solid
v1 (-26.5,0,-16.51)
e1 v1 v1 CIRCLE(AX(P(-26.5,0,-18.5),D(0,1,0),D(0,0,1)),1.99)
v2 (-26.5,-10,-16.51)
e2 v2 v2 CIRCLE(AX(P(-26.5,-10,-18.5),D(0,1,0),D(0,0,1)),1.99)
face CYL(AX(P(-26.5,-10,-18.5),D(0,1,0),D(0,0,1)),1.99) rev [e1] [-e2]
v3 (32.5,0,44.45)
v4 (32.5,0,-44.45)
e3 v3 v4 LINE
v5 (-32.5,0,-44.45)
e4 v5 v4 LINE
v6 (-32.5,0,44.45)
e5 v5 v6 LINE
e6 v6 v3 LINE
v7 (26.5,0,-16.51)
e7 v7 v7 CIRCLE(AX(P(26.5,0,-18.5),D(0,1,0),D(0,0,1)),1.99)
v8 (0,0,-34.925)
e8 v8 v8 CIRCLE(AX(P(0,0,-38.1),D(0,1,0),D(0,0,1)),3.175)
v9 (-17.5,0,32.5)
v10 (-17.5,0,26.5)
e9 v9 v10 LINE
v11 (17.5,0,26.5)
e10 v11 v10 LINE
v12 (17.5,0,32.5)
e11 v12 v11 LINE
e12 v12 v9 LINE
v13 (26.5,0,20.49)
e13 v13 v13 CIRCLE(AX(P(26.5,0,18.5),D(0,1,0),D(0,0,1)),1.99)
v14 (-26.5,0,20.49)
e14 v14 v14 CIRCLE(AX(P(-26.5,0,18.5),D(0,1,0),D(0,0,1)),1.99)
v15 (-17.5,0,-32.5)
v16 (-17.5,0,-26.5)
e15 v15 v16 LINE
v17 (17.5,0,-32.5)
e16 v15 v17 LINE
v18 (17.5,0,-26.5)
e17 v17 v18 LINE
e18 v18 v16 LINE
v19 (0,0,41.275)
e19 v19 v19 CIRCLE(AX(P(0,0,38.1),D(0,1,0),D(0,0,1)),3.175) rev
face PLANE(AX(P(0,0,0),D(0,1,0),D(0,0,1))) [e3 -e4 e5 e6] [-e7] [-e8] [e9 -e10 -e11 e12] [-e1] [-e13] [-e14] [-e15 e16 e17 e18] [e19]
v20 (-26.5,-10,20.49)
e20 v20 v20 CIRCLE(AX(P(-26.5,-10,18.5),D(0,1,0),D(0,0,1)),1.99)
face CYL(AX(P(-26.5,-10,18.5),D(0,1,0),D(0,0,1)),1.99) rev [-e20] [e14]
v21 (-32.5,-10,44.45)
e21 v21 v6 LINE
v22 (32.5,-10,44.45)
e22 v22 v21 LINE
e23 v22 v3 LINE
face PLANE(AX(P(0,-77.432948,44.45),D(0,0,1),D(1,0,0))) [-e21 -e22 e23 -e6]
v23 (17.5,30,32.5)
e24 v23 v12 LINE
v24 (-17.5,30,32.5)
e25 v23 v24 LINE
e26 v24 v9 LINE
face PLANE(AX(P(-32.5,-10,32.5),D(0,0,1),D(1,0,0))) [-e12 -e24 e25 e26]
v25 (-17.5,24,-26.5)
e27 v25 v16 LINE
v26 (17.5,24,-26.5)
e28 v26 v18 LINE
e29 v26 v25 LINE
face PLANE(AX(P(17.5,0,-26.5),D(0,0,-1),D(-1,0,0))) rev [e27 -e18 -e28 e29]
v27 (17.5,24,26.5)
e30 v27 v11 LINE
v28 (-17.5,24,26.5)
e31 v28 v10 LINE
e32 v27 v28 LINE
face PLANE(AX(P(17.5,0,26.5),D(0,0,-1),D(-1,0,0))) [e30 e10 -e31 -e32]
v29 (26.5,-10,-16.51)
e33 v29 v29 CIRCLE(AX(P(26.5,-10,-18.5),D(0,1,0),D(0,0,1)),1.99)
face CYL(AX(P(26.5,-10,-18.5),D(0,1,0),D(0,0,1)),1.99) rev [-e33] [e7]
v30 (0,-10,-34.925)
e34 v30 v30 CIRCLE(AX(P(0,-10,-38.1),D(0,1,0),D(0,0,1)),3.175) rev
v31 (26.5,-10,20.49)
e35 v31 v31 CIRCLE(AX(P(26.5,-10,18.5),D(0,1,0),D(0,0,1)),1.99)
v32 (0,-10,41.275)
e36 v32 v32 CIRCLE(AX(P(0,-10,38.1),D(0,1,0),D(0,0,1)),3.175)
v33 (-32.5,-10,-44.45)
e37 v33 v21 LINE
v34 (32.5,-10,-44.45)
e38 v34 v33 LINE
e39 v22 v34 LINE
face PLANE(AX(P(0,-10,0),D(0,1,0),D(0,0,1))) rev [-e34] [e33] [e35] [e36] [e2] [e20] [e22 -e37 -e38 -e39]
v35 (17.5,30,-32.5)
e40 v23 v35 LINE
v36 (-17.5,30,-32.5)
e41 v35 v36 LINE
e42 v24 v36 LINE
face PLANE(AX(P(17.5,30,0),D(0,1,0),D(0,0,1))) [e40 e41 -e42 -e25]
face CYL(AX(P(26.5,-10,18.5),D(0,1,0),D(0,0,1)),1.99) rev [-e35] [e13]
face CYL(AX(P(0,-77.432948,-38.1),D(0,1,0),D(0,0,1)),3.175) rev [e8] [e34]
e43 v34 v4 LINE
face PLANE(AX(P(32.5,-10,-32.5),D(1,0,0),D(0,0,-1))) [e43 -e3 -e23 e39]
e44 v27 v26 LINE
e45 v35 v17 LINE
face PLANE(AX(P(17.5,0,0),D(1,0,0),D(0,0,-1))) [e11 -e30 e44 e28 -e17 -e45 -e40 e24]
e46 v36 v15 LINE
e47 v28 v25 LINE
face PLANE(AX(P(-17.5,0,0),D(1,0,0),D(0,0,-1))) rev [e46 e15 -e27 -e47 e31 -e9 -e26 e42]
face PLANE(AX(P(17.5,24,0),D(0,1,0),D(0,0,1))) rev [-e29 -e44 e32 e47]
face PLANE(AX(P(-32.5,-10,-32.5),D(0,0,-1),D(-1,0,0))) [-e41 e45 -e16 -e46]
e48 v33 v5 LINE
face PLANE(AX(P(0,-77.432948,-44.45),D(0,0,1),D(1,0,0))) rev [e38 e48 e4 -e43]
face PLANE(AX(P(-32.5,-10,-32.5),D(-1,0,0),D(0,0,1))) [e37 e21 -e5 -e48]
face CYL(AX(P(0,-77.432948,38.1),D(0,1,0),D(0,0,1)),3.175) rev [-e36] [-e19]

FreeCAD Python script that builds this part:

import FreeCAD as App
import Part
import Sketcher
Q = App.Units.Quantity

doc = App.newDocument("Part")
body = doc.addObject("PartDesign::Body", "Body")

sketch1 = doc.addObject("Sketcher::SketchObject", "Sketch")
body.addObject(sketch1)
sketch1.AttachmentSupport = (doc.XZ_Plane, [""])
sketch1.MapMode = "FlatFace"
sketch1.addGeometry([
    Part.LineSegment(App.Vector(-32.5, -32.5, 0), App.Vector(-32.5, 32.5, 0)),
    Part.LineSegment(App.Vector(-32.5, 32.5, 0), App.Vector(32.5, 32.5, 0)),
    Part.LineSegment(App.Vector(32.5, 32.5, 0), App.Vector(32.5, -32.5, 0)),
    Part.LineSegment(App.Vector(32.5, -32.5, 0), App.Vector(-32.5, -32.5, 0)),
], False)
sketch1.addConstraint([
    Sketcher.Constraint("Coincident", 0, 2, 1, 1),
    Sketcher.Constraint("Coincident", 1, 2, 2, 1),
    Sketcher.Constraint("Coincident", 2, 2, 3, 1),
    Sketcher.Constraint("Coincident", 3, 2, 0, 1),
    Sketcher.Constraint("Vertical", 0),
    Sketcher.Constraint("Horizontal", 1),
    Sketcher.Constraint("Vertical", 2),
    Sketcher.Constraint("Horizontal", 3),
    Sketcher.Constraint("Symmetric", 0, 2, 2, 2, -1, 1),
    Sketcher.Constraint("Equal", 3, 0),
    Sketcher.Constraint("DistanceX", 1, 1, 1, 2, Q("65 mm")),
])
pad1 = doc.addObject("PartDesign::Pad", "Pad")
body.addObject(pad1)
pad1.Profile = sketch1
pad1.Length = 10

sketch2 = doc.addObject("Sketcher::SketchObject", "Sketch001")
body.addObject(sketch2)
sketch2.AttachmentSupport = (doc.YZ_Plane, [""])
sketch2.MapMode = "FlatFace"
sketch2.addGeometry([
    Part.LineSegment(App.Vector(30, 32.5, 0), App.Vector(0, 32.5, 0)),
    Part.LineSegment(App.Vector(0, 32.5, 0), App.Vector(0, 26.5, 0)),
    Part.LineSegment(App.Vector(0, 26.5, 0), App.Vector(24, 26.5, 0)),
    Part.LineSegment(App.Vector(24, 26.5, 0), App.Vector(24, -26.5, 0)),
    Part.LineSegment(App.Vector(24, -26.5, 0), App.Vector(0, -26.5, 0)),
    Part.LineSegment(App.Vector(0, -26.5, 0), App.Vector(0, -32.5, 0)),
    Part.LineSegment(App.Vector(0, -32.5, 0), App.Vector(30, -32.5, 0)),
    Part.LineSegment(App.Vector(30, -32.5, 0), App.Vector(30, 32.5, 0)),
], False)
sketch2.addConstraint([
    Sketcher.Constraint("Coincident", 0, 2, 1, 1),
    Sketcher.Constraint("Coincident", 1, 2, 2, 1),
    Sketcher.Constraint("Coincident", 2, 2, 3, 1),
    Sketcher.Constraint("Coincident", 3, 2, 4, 1),
    Sketcher.Constraint("Coincident", 4, 2, 5, 1),
    Sketcher.Constraint("Coincident", 5, 2, 6, 1),
    Sketcher.Constraint("Coincident", 6, 2, 7, 1),
    Sketcher.Constraint("Coincident", 7, 2, 0, 1),
    Sketcher.Constraint("Horizontal", 0),
    Sketcher.Constraint("Vertical", 1),
    Sketcher.Constraint("Horizontal", 2),
    Sketcher.Constraint("Vertical", 3),
    Sketcher.Constraint("Horizontal", 4),
    Sketcher.Constraint("Vertical", 5),
    Sketcher.Constraint("Horizontal", 6),
    Sketcher.Constraint("Vertical", 7),
    Sketcher.Constraint("Symmetric", 1, 2, 4, 2, -1, 1),
    Sketcher.Constraint("Symmetric", 0, 2, 5, 2, -1),
    Sketcher.Constraint("DistanceX", 0, 2, 0, 1, Q("30 mm")),
    Sketcher.Constraint("DistanceX", 2, 1, 2, 2, Q("24 mm")),
    Sketcher.Constraint("DistanceY", 1, 2, 1, 1, Q("6 mm")),
    Sketcher.Constraint("DistanceY", 3, 2, 3, 1, Q("53 mm")),
])
pad2 = doc.addObject("PartDesign::Pad", "Pad001")
body.addObject(pad2)
pad2.Profile = sketch2
pad2.Length = 35
pad2.Midplane = True

sketch3 = doc.addObject("Sketcher::SketchObject", "Sketch002")
body.addObject(sketch3)
sketch3.AttachmentSupport = (doc.XZ_Plane, [""])
sketch3.MapMode = "FlatFace"
sketch3.addGeometry([
    Part.LineSegment(App.Vector(32.5, -44.45, 0), App.Vector(-32.5, -44.45, 0)),
    Part.LineSegment(App.Vector(-32.5, -44.45, 0), App.Vector(-32.5, -32.5, 0)),
    Part.LineSegment(App.Vector(-32.5, -32.5, 0), App.Vector(-17.5, -32.5, 0)),
    Part.LineSegment(App.Vector(-17.5, -32.5, 0), App.Vector(-17.5, -26.5, 0)),
    Part.LineSegment(App.Vector(-17.5, -26.5, 0), App.Vector(17.5, -26.5, 0)),
    Part.LineSegment(App.Vector(17.5, -26.5, 0), App.Vector(17.5, -32.5, 0)),
    Part.LineSegment(App.Vector(17.5, -32.5, 0), App.Vector(32.5, -32.5, 0)),
    Part.LineSegment(App.Vector(32.5, -32.5, 0), App.Vector(32.5, -44.45, 0)),
    Part.Circle(App.Vector(0, -38.1, 0), App.Vector(0, 0, 1), 3.175),
    Part.LineSegment(App.Vector(-17.5, 32.5, 0), App.Vector(-32.5, 32.5, 0)),
    Part.LineSegment(App.Vector(-32.5, 32.5, 0), App.Vector(-32.5, 44.45, 0)),
    Part.LineSegment(App.Vector(-32.5, 44.45, 0), App.Vector(32.5, 44.45, 0)),
    Part.LineSegment(App.Vector(32.5, 44.45, 0), App.Vector(32.5, 32.5, 0)),
    Part.LineSegment(App.Vector(32.5, 32.5, 0), App.Vector(17.5, 32.5, 0)),
    Part.LineSegment(App.Vector(17.5, 32.5, 0), App.Vector(17.5, 26.5, 0)),
    Part.LineSegment(App.Vector(17.5, 26.5, 0), App.Vector(-17.5, 26.5, 0)),
    Part.LineSegment(App.Vector(-17.5, 26.5, 0), App.Vector(-17.5, 32.5, 0)),
    Part.Circle(App.Vector(0, 38.1, 0), App.Vector(0, 0, 1), 3.175),
], False)
sketch3.addConstraint([
    Sketcher.Constraint("Coincident", 0, 2, 1, 1),
    Sketcher.Constraint("Coincident", 1, 2, 2, 1),
    Sketcher.Constraint("Coincident", 2, 2, 3, 1),
    Sketcher.Constraint("Coincident", 3, 2, 4, 1),
    Sketcher.Constraint("Coincident", 4, 2, 5, 1),
    Sketcher.Constraint("Coincident", 5, 2, 6, 1),
    Sketcher.Constraint("Coincident", 6, 2, 7, 1),
    Sketcher.Constraint("Coincident", 7, 2, 0, 1),
    Sketcher.Constraint("Coincident", 9, 2, 10, 1),
    Sketcher.Constraint("Coincident", 10, 2, 11, 1),
    Sketcher.Constraint("Coincident", 11, 2, 12, 1),
    Sketcher.Constraint("Coincident", 12, 2, 13, 1),
    Sketcher.Constraint("Coincident", 13, 2, 14, 1),
    Sketcher.Constraint("Coincident", 14, 2, 15, 1),
    Sketcher.Constraint("Coincident", 15, 2, 16, 1),
    Sketcher.Constraint("Coincident", 16, 2, 9, 1),
    Sketcher.Constraint("Horizontal", 0),
    Sketcher.Constraint("Vertical", 1),
    Sketcher.Constraint("Horizontal", 2),
    Sketcher.Constraint("Vertical", 3),
    Sketcher.Constraint("Horizontal", 4),
    Sketcher.Constraint("Vertical", 5),
    Sketcher.Constraint("Horizontal", 6),
    Sketcher.Constraint("Vertical", 7),
    Sketcher.Constraint("Horizontal", 9),
    Sketcher.Constraint("Vertical", 10),
    Sketcher.Constraint("Horizontal", 11),
    Sketcher.Constraint("Vertical", 12),
    Sketcher.Constraint("Horizontal", 13),
    Sketcher.Constraint("Vertical", 14),
    Sketcher.Constraint("Horizontal", 15),
    Sketcher.Constraint("Vertical", 16),
    Sketcher.Constraint("Equal", 8, 17),
    Sketcher.Constraint("Symmetric", 8, 3, 17, 3, -1, 1),
    Sketcher.Constraint("Symmetric", 6, 2, 9, 2, -1, 1),
    Sketcher.Constraint("Symmetric", 0, 2, 11, 2, -1, 1),
    Sketcher.Constraint("Symmetric", 2, 2, 13, 2, -1, 1),
    Sketcher.Constraint("Symmetric", 4, 2, 15, 2, -1, 1),
    Sketcher.Constraint("Symmetric", 2, 2, 5, 2, -2),
    Sketcher.Constraint("PointOnObject", 8, 3, -2),
    Sketcher.Constraint("Vertical", 1, 2, 9, 2),
    Sketcher.Constraint("Diameter", 8, Q("6.35 mm")),
    Sketcher.Constraint("DistanceX", 0, 2, 0, 1, Q("65 mm")),
    Sketcher.Constraint("DistanceX", 2, 1, 2, 2, Q("15 mm")),
    Sketcher.Constraint("DistanceY", 3, 1, 3, 2, Q("6 mm")),
    Sketcher.Constraint("DistanceY", 3, 2, 9, 2, Q("59 mm")),
    Sketcher.Constraint("DistanceY", 1, 1, 1, 2, Q("11.95 mm")),
    Sketcher.Constraint("DistanceY", 8, 3, -1, 1, Q("38.1 mm")),
])
pad3 = doc.addObject("PartDesign::Pad", "Pad002")
body.addObject(pad3)
pad3.Profile = sketch3
pad3.Length = 10

sketch4 = doc.addObject("Sketcher::SketchObject", "Sketch003")
body.addObject(sketch4)
sketch4.AttachmentSupport = (doc.XZ_Plane, [""])
sketch4.MapMode = "FlatFace"
sketch4.addGeometry([
    Part.Circle(App.Vector(-26.5, -18.5, 0), App.Vector(0, 0, 1), 1.99),
    Part.Circle(App.Vector(26.5, -18.5, 0), App.Vector(0, 0, 1), 1.99),
    Part.Circle(App.Vector(26.5, 18.5, 0), App.Vector(0, 0, 1), 1.99),
    Part.Circle(App.Vector(-26.5, 18.5, 0), App.Vector(0, 0, 1), 1.99),
], False)
sketch4.addConstraint([
    Sketcher.Constraint("Equal", 0, 1),
    Sketcher.Constraint("Equal", 1, 2),
    Sketcher.Constraint("Equal", 2, 3),
    Sketcher.Constraint("Symmetric", 0, 3, 2, 3, -1, 1),
    Sketcher.Constraint("Symmetric", 1, 3, 3, 3, -1, 1),
    Sketcher.Constraint("Symmetric", 0, 3, 1, 3, -2),
    Sketcher.Constraint("Diameter", 0, Q("3.98 mm")),
    Sketcher.Constraint("DistanceX", 0, 3, 1, 3, Q("53 mm")),
    Sketcher.Constraint("DistanceY", 1, 3, 2, 3, Q("37 mm")),
])
pocket1 = doc.addObject("PartDesign::Pocket", "Pocket")
body.addObject(pocket1)
pocket1.Profile = sketch4
pocket1.Type = "ThroughAll"
pocket1.Reversed = True

doc.recompute()
